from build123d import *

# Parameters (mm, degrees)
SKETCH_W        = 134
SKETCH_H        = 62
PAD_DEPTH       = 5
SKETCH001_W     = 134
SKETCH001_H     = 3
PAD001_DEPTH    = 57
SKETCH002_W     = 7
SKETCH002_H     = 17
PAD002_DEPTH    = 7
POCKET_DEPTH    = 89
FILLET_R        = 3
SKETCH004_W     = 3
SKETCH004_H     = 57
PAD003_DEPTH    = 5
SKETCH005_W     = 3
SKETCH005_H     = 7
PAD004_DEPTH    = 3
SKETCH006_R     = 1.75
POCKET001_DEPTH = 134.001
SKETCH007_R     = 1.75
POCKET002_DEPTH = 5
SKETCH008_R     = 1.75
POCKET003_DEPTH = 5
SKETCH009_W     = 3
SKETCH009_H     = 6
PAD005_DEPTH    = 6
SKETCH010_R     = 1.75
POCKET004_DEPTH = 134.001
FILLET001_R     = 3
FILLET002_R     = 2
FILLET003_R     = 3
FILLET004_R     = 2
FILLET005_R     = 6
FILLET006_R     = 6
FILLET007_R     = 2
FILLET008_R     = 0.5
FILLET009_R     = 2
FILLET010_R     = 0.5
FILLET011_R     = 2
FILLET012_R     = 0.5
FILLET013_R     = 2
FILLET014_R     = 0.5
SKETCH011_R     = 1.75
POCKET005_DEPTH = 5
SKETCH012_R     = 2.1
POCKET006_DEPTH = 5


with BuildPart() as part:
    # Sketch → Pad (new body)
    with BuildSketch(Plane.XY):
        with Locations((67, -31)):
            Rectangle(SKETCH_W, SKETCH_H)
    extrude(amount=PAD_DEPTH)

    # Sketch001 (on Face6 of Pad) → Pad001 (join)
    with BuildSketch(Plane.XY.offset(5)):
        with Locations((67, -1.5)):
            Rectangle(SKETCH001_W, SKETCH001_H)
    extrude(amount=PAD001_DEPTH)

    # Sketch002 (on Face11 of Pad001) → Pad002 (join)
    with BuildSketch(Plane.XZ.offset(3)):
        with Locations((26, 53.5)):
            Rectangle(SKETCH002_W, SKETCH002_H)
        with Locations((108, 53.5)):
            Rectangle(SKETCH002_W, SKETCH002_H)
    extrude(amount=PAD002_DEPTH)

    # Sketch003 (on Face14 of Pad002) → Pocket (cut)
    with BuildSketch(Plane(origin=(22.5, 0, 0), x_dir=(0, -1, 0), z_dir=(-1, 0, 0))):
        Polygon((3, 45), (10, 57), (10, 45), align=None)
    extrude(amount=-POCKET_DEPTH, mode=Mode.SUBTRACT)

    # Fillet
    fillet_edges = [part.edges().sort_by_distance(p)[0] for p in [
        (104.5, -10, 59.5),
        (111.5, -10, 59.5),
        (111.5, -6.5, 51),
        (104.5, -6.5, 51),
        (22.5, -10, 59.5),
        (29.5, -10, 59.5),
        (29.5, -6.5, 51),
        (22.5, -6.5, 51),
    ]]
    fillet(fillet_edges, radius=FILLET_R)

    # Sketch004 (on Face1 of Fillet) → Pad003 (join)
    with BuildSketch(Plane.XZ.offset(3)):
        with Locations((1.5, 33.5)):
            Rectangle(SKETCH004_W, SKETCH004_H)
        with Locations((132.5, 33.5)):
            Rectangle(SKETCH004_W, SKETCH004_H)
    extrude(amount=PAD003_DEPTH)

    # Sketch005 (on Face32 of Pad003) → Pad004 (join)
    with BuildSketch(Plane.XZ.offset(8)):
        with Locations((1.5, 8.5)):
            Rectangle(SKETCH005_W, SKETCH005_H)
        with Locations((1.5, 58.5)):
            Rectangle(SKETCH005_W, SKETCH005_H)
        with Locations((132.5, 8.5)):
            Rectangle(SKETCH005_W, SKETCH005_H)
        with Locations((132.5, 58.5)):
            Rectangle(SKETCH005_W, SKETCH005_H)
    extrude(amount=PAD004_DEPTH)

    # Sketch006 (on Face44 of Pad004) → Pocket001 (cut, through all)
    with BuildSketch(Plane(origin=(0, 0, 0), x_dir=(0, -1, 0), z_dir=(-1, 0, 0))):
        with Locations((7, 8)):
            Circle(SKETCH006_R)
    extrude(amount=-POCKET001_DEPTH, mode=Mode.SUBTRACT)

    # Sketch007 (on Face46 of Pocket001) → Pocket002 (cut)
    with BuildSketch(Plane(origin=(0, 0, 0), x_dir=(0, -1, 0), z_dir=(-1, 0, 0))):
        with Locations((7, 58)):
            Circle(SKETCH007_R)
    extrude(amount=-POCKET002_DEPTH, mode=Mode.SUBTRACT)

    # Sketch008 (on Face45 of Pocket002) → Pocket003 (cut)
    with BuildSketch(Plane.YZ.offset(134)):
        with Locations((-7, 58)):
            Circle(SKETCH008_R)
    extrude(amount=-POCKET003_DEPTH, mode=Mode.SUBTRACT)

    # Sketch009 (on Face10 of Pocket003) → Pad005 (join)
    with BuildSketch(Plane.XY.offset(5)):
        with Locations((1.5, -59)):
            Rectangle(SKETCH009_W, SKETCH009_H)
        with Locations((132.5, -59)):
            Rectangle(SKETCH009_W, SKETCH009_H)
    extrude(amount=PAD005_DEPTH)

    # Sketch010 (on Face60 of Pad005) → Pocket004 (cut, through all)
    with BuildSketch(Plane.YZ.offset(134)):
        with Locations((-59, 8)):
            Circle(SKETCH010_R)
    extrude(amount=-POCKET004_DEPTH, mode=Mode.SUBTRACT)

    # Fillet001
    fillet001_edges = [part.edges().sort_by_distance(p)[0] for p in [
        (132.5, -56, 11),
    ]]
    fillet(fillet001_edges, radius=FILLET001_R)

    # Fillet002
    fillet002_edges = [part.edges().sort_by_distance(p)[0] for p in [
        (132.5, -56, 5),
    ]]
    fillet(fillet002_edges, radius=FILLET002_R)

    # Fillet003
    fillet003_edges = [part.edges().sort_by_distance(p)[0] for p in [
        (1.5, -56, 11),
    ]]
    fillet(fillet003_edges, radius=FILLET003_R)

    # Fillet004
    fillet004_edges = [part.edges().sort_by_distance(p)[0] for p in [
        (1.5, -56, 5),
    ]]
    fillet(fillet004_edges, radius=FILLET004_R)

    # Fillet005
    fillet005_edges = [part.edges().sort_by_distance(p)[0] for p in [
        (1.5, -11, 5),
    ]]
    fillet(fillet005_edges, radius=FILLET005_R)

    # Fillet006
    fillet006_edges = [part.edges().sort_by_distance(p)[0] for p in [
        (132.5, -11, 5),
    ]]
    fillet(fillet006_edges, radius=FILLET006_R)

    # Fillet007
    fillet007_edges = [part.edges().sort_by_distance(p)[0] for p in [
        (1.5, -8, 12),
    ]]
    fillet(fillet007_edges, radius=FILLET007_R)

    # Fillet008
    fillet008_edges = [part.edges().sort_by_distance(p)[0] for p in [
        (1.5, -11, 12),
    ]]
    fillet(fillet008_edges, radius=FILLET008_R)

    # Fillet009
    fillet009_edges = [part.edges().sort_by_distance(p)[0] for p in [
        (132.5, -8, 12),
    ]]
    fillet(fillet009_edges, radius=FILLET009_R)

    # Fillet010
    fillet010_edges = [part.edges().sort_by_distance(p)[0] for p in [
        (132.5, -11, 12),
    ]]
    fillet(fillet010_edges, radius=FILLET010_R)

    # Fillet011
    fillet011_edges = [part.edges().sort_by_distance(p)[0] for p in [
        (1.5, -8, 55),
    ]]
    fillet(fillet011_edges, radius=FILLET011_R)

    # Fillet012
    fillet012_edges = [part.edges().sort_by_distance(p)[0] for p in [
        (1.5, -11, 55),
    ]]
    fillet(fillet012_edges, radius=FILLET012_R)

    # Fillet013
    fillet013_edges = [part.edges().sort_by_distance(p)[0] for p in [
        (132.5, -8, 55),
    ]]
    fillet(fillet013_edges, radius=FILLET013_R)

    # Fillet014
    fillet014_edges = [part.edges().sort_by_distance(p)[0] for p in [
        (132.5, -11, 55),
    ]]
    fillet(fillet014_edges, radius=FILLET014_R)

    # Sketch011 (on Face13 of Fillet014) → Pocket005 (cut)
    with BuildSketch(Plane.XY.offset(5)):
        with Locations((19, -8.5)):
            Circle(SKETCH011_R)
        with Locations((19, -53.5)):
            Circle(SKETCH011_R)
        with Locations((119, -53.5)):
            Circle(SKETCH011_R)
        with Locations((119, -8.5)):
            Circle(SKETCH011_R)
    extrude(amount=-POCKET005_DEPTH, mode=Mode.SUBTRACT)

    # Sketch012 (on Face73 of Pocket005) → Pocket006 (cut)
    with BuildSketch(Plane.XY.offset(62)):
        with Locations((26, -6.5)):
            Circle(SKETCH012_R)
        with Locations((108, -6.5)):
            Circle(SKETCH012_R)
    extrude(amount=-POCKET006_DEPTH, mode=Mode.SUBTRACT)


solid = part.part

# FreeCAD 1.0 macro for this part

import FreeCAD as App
import Part
import Sketcher

V = App.Vector


def edges_at(feature, points):
    """Names of the edges that pass closest to the given points."""
    edges = feature.Shape.Edges
    near = lambda p: min(range(len(edges)), key=lambda i: edges[i].distToShape(Part.Vertex(*p))[0])
    return sorted({f"Edge{near(p) + 1}" for p in points})


def add_polygon(sketch, points):
    """Adds a closed chain of lines whose ends are joined by coincident constraints."""
    first, n = sketch.GeometryCount, len(points)
    for a, b in zip(points, points[1:] + points[:1]):
        sketch.addGeometry(Part.LineSegment(App.Vector(*a, 0), App.Vector(*b, 0)), False)
    for i in range(n):
        sketch.addConstraint(Sketcher.Constraint("Coincident", first + i, 2, first + (i + 1) % n, 1))

doc = App.newDocument("Part")
body = doc.addObject("PartDesign::Body", "Body")

sketch1 = body.newObject("Sketcher::SketchObject", "Sketch")
sketch1.AttachmentSupport = (doc.getObject("XY_Plane"), [""])
sketch1.MapMode = "FlatFace"
add_polygon(sketch1, [(0, 0), (0, -62), (134, -62), (134, 0)])
sketch1.addConstraint(Sketcher.Constraint("Vertical", 0))
sketch1.addConstraint(Sketcher.Constraint("Horizontal", 1))
sketch1.addConstraint(Sketcher.Constraint("Vertical", 2))
sketch1.addConstraint(Sketcher.Constraint("Horizontal", 3))
sketch1.addConstraint(Sketcher.Constraint("Coincident", 3, 2, -1, 1))
sketch1.addConstraint(Sketcher.Constraint("DistanceX", 1, 1, 1, 2, 134.0))
sketch1.addConstraint(Sketcher.Constraint("DistanceY", 0, 2, 0, 1, 62.0))
pad1 = body.newObject("PartDesign::Pad", "Pad")
pad1.Profile = sketch1
pad1.Length = 5

sketch2 = body.newObject("Sketcher::SketchObject", "Sketch001")
sketch2.AttachmentSupport = (doc.getObject("XY_Plane"), [""])
sketch2.MapMode = "FlatFace"
sketch2.AttachmentOffset = App.Placement(V(0, 0, 5), App.Rotation())
add_polygon(sketch2, [(0, 0), (0, -3), (134, -3), (134, 0)])
sketch2.addConstraint(Sketcher.Constraint("Vertical", 0))
sketch2.addConstraint(Sketcher.Constraint("Horizontal", 1))
sketch2.addConstraint(Sketcher.Constraint("Vertical", 2))
sketch2.addConstraint(Sketcher.Constraint("Horizontal", 3))
sketch2.addConstraint(Sketcher.Constraint("Coincident", 3, 2, -1, 1))
sketch2.addConstraint(Sketcher.Constraint("DistanceX", 1, 1, 1, 2, 134.0))
sketch2.addConstraint(Sketcher.Constraint("DistanceY", 0, 2, 0, 1, 3.0))
pad2 = body.newObject("PartDesign::Pad", "Pad001")
pad2.Profile = sketch2
pad2.Length = 57

sketch3 = body.newObject("Sketcher::SketchObject", "Sketch002")
sketch3.AttachmentSupport = (doc.getObject("XZ_Plane"), [""])
sketch3.MapMode = "FlatFace"
sketch3.AttachmentOffset = App.Placement(V(0, 0, 3), App.Rotation())
add_polygon(sketch3, [(22, 62), (22, 45), (30, 45), (30, 62)])
add_polygon(sketch3, [(104, 62), (104, 45), (112, 45), (112, 62)])
sketch3.addConstraint(Sketcher.Constraint("Vertical", 0))
sketch3.addConstraint(Sketcher.Constraint("Horizontal", 1))
sketch3.addConstraint(Sketcher.Constraint("Vertical", 2))
sketch3.addConstraint(Sketcher.Constraint("Horizontal", 3))
sketch3.addConstraint(Sketcher.Constraint("Vertical", 4))
sketch3.addConstraint(Sketcher.Constraint("Horizontal", 5))
sketch3.addConstraint(Sketcher.Constraint("Vertical", 6))
sketch3.addConstraint(Sketcher.Constraint("Horizontal", 7))
sketch3.addConstraint(Sketcher.Constraint("Horizontal", 1, 2, 4, 2))
sketch3.addConstraint(Sketcher.Constraint("Horizontal", 3, 2, 6, 2))
sketch3.addConstraint(Sketcher.Constraint("Equal", 3, 5))
sketch3.addConstraint(Sketcher.Constraint("DistanceX", 1, 1, 1, 2, 7.0))
sketch3.addConstraint(Sketcher.Constraint("DistanceY", 0, 2, 0, 1, 17.0))
sketch3.addConstraint(Sketcher.Constraint("DistanceY", -1, 1, 0, 2, 45.0))
sketch3.addConstraint(Sketcher.Constraint("DistanceX", 1, 2, 4, 2, 75.0))
sketch3.addConstraint(Sketcher.Constraint("DistanceX", -1, 1, 0, 2, 22.5))
pad3 = body.newObject("PartDesign::Pad", "Pad002")
pad3.Profile = sketch3
pad3.Length = 7

sketch4 = body.newObject("Sketcher::SketchObject", "Sketch003")
sketch4.AttachmentSupport = (doc.getObject("YZ_Plane"), [""])
sketch4.MapMode = "FlatFace"
sketch4.AttachmentOffset = App.Placement(V(0, 0, 22.5), App.Rotation())
add_polygon(sketch4, [(-10, 57), (-3, 45), (-10, 45)])
sketch4.addConstraint(Sketcher.Constraint("Horizontal", 1))
sketch4.addConstraint(Sketcher.Constraint("Vertical", 2))
sketch4.addConstraint(Sketcher.Constraint("DistanceX", 1, 2, 1, 1, 7.0))
sketch4.addConstraint(Sketcher.Constraint("DistanceY", 2, 1, 2, 2, 12.0))
sketch4.addConstraint(Sketcher.Constraint("DistanceX", 0, 2, -1, 1, 3.0))
sketch4.addConstraint(Sketcher.Constraint("DistanceY", -1, 1, 0, 2, 45.0))
pocket1 = body.newObject("PartDesign::Pocket", "Pocket")
pocket1.Profile = sketch4
pocket1.Length = 89
pocket1.Reversed = True
doc.recompute()

fillet = body.newObject("PartDesign::Fillet", "Fillet")
fillet.Base = (pocket1, edges_at(pocket1, [
    (104.5, -10, 59.5),
    (111.5, -10, 59.5),
    (111.5, -6.5, 51),
    (104.5, -6.5, 51),
    (22.5, -10, 59.5),
    (29.5, -10, 59.5),
    (29.5, -6.5, 51),
    (22.5, -6.5, 51),
]))
fillet.Radius = 3

sketch5 = body.newObject("Sketcher::SketchObject", "Sketch004")
sketch5.AttachmentSupport = (doc.getObject("XZ_Plane"), [""])
sketch5.MapMode = "FlatFace"
sketch5.AttachmentOffset = App.Placement(V(0, 0, 3), App.Rotation())
add_polygon(sketch5, [(0, 62), (0, 5), (3, 5), (3, 62)])
add_polygon(sketch5, [(131, 62), (131, 5), (134, 5), (134, 62)])
sketch5.addConstraint(Sketcher.Constraint("Vertical", 0))
sketch5.addConstraint(Sketcher.Constraint("Horizontal", 1))
sketch5.addConstraint(Sketcher.Constraint("Vertical", 2))
sketch5.addConstraint(Sketcher.Constraint("Horizontal", 3))
sketch5.addConstraint(Sketcher.Constraint("Vertical", 4))
sketch5.addConstraint(Sketcher.Constraint("Horizontal", 5))
sketch5.addConstraint(Sketcher.Constraint("Vertical", 6))
sketch5.addConstraint(Sketcher.Constraint("Horizontal", 7))
sketch5.addConstraint(Sketcher.Constraint("PointOnObject", 0, 2, -2))
sketch5.addConstraint(Sketcher.Constraint("Horizontal", 1, 2, 4, 2))
sketch5.addConstraint(Sketcher.Constraint("Horizontal", 3, 2, 6, 2))
sketch5.addConstraint(Sketcher.Constraint("Equal", 3, 5))
sketch5.addConstraint(Sketcher.Constraint("DistanceX", 1, 1, 1, 2, 3.0))
sketch5.addConstraint(Sketcher.Constraint("DistanceY", 0, 2, 0, 1, 57.0))
sketch5.addConstraint(Sketcher.Constraint("DistanceY", -1, 1, 0, 2, 5.0))
sketch5.addConstraint(Sketcher.Constraint("DistanceX", -1, 1, 4, 2, 131.0))
pad4 = body.newObject("PartDesign::Pad", "Pad003")
pad4.Profile = sketch5
pad4.Length = 5

sketch6 = body.newObject("Sketcher::SketchObject", "Sketch005")
sketch6.AttachmentSupport = (doc.getObject("XZ_Plane"), [""])
sketch6.MapMode = "FlatFace"
sketch6.AttachmentOffset = App.Placement(V(0, 0, 8), App.Rotation())
add_polygon(sketch6, [(0, 12), (0, 5), (3, 5), (3, 12)])
add_polygon(sketch6, [(0, 62), (0, 55), (3, 55), (3, 62)])
add_polygon(sketch6, [(131, 12), (131, 5), (134, 5), (134, 12)])
add_polygon(sketch6, [(131, 62), (131, 55), (134, 55), (134, 62)])
sketch6.addConstraint(Sketcher.Constraint("Vertical", 0))
sketch6.addConstraint(Sketcher.Constraint("Horizontal", 1))
sketch6.addConstraint(Sketcher.Constraint("Vertical", 2))
sketch6.addConstraint(Sketcher.Constraint("Horizontal", 3))
sketch6.addConstraint(Sketcher.Constraint("Vertical", 4))
sketch6.addConstraint(Sketcher.Constraint("Horizontal", 5))
sketch6.addConstraint(Sketcher.Constraint("Vertical", 6))
sketch6.addConstraint(Sketcher.Constraint("Horizontal", 7))
sketch6.addConstraint(Sketcher.Constraint("Vertical", 8))
sketch6.addConstraint(Sketcher.Constraint("Horizontal", 9))
sketch6.addConstraint(Sketcher.Constraint("Vertical", 10))
sketch6.addConstraint(Sketcher.Constraint("Horizontal", 11))
sketch6.addConstraint(Sketcher.Constraint("Vertical", 12))
sketch6.addConstraint(Sketcher.Constraint("Horizontal", 13))
sketch6.addConstraint(Sketcher.Constraint("Vertical", 14))
sketch6.addConstraint(Sketcher.Constraint("Horizontal", 15))
sketch6.addConstraint(Sketcher.Constraint("PointOnObject", 0, 2, -2))
sketch6.addConstraint(Sketcher.Constraint("PointOnObject", 4, 2, -2))
sketch6.addConstraint(Sketcher.Constraint("Horizontal", 1, 2, 8, 2))
sketch6.addConstraint(Sketcher.Constraint("Horizontal", 3, 2, 10, 2))
sketch6.addConstraint(Sketcher.Constraint("Horizontal", 5, 2, 12, 2))
sketch6.addConstraint(Sketcher.Constraint("Horizontal", 7, 2, 14, 2))
sketch6.addConstraint(Sketcher.Constraint("Vertical", 2, 2, 5, 2))
sketch6.addConstraint(Sketcher.Constraint("Vertical", 11, 2, 12, 2))
sketch6.addConstraint(Sketcher.Constraint("Vertical", 10, 2, 13, 2))
sketch6.addConstraint(Sketcher.Constraint("Equal", 7, 9))
sketch6.addConstraint(Sketcher.Constraint("Equal", 2, 4))
sketch6.addConstraint(Sketcher.Constraint("DistanceX", 1, 1, 1, 2, 3.0))
sketch6.addConstraint(Sketcher.Constraint("DistanceY", 0, 2, 0, 1, 7.0))
sketch6.addConstraint(Sketcher.Constraint("DistanceY", -1, 1, 0, 2, 5.0))
sketch6.addConstraint(Sketcher.Constraint("DistanceY", -1, 1, 4, 2, 55.0))
sketch6.addConstraint(Sketcher.Constraint("DistanceX", -1, 1, 8, 2, 131.0))
pad5 = body.newObject("PartDesign::Pad", "Pad004")
pad5.Profile = sketch6
pad5.Length = 3

sketch7 = body.newObject("Sketcher::SketchObject", "Sketch006")
sketch7.AttachmentSupport = (doc.getObject("YZ_Plane"), [""])
sketch7.MapMode = "FlatFace"
sketch7.addGeometry(Part.Circle(V(-7, 8, 0), V(0, 0, 1), 1.8), False)
sketch7.addConstraint(Sketcher.Constraint("Diameter", 0, 3.5))
sketch7.addConstraint(Sketcher.Constraint("DistanceX", 0, 3, -1, 1, 7.0))
sketch7.addConstraint(Sketcher.Constraint("DistanceY", -1, 1, 0, 3, 8.0))
pocket2 = body.newObject("PartDesign::Pocket", "Pocket001")
pocket2.Profile = sketch7
pocket2.Type = "ThroughAll"
pocket2.Reversed = True

sketch8 = body.newObject("Sketcher::SketchObject", "Sketch007")
sketch8.AttachmentSupport = (doc.getObject("YZ_Plane"), [""])
sketch8.MapMode = "FlatFace"
sketch8.addGeometry(Part.Circle(V(-7, 58, 0), V(0, 0, 1), 1.8), False)
sketch8.addConstraint(Sketcher.Constraint("Diameter", 0, 3.5))
sketch8.addConstraint(Sketcher.Constraint("DistanceX", 0, 3, -1, 1, 7.0))
sketch8.addConstraint(Sketcher.Constraint("DistanceY", -1, 1, 0, 3, 58.0))
pocket3 = body.newObject("PartDesign::Pocket", "Pocket002")
pocket3.Profile = sketch8
pocket3.Length = 5
pocket3.Reversed = True

sketch9 = body.newObject("Sketcher::SketchObject", "Sketch008")
sketch9.AttachmentSupport = (doc.getObject("YZ_Plane"), [""])
sketch9.MapMode = "FlatFace"
sketch9.AttachmentOffset = App.Placement(V(0, 0, 134), App.Rotation())
sketch9.addGeometry(Part.Circle(V(-7, 58, 0), V(0, 0, 1), 1.8), False)
sketch9.addConstraint(Sketcher.Constraint("Diameter", 0, 3.5))
sketch9.addConstraint(Sketcher.Constraint("DistanceX", 0, 3, -1, 1, 7.0))
sketch9.addConstraint(Sketcher.Constraint("DistanceY", -1, 1, 0, 3, 58.0))
pocket4 = body.newObject("PartDesign::Pocket", "Pocket003")
pocket4.Profile = sketch9
pocket4.Length = 5

sketch10 = body.newObject("Sketcher::SketchObject", "Sketch009")
sketch10.AttachmentSupport = (doc.getObject("XY_Plane"), [""])
sketch10.MapMode = "FlatFace"
sketch10.AttachmentOffset = App.Placement(V(0, 0, 5), App.Rotation())
add_polygon(sketch10, [(0, -56), (0, -62), (3, -62), (3, -56)])
add_polygon(sketch10, [(131, -56), (131, -62), (134, -62), (134, -56)])
sketch10.addConstraint(Sketcher.Constraint("Vertical", 0))
sketch10.addConstraint(Sketcher.Constraint("Horizontal", 1))
sketch10.addConstraint(Sketcher.Constraint("Vertical", 2))
sketch10.addConstraint(Sketcher.Constraint("Horizontal", 3))
sketch10.addConstraint(Sketcher.Constraint("Vertical", 4))
sketch10.addConstraint(Sketcher.Constraint("Horizontal", 5))
sketch10.addConstraint(Sketcher.Constraint("Vertical", 6))
sketch10.addConstraint(Sketcher.Constraint("Horizontal", 7))
sketch10.addConstraint(Sketcher.Constraint("PointOnObject", 0, 2, -2))
sketch10.addConstraint(Sketcher.Constraint("Horizontal", 1, 2, 4, 2))
sketch10.addConstraint(Sketcher.Constraint("Horizontal", 3, 2, 6, 2))
sketch10.addConstraint(Sketcher.Constraint("Equal", 3, 5))
sketch10.addConstraint(Sketcher.Constraint("DistanceX", 1, 1, 1, 2, 3.0))
sketch10.addConstraint(Sketcher.Constraint("DistanceY", 0, 2, 0, 1, 6.0))
sketch10.addConstraint(Sketcher.Constraint("DistanceY", 0, 2, -1, 1, 62.0))
sketch10.addConstraint(Sketcher.Constraint("DistanceX", -1, 1, 4, 2, 131.0))
pad6 = body.newObject("PartDesign::Pad", "Pad005")
pad6.Profile = sketch10
pad6.Length = 6

sketch11 = body.newObject("Sketcher::SketchObject", "Sketch010")
sketch11.AttachmentSupport = (doc.getObject("YZ_Plane"), [""])
sketch11.MapMode = "FlatFace"
sketch11.AttachmentOffset = App.Placement(V(0, 0, 134), App.Rotation())
sketch11.addGeometry(Part.Circle(V(-59, 8, 0), V(0, 0, 1), 1.8), False)
sketch11.addConstraint(Sketcher.Constraint("Diameter", 0, 3.5))
sketch11.addConstraint(Sketcher.Constraint("DistanceX", 0, 3, -1, 1, 59.0))
sketch11.addConstraint(Sketcher.Constraint("DistanceY", -1, 1, 0, 3, 8.0))
pocket5 = body.newObject("PartDesign::Pocket", "Pocket004")
pocket5.Profile = sketch11
pocket5.Type = "ThroughAll"
doc.recompute()

fillet2 = body.newObject("PartDesign::Fillet", "Fillet001")
fillet2.Base = (pocket5, edges_at(pocket5, [(132.5, -56, 11)]))
fillet2.Radius = 3
doc.recompute()

fillet3 = body.newObject("PartDesign::Fillet", "Fillet002")
fillet3.Base = (fillet2, edges_at(fillet2, [(132.5, -56, 5)]))
fillet3.Radius = 2
doc.recompute()

fillet4 = body.newObject("PartDesign::Fillet", "Fillet003")
fillet4.Base = (fillet3, edges_at(fillet3, [(1.5, -56, 11)]))
fillet4.Radius = 3
doc.recompute()

fillet5 = body.newObject("PartDesign::Fillet", "Fillet004")
fillet5.Base = (fillet4, edges_at(fillet4, [(1.5, -56, 5)]))
fillet5.Radius = 2
doc.recompute()

fillet6 = body.newObject("PartDesign::Fillet", "Fillet005")
fillet6.Base = (fillet5, edges_at(fillet5, [(1.5, -11, 5)]))
fillet6.Radius = 6
doc.recompute()

fillet7 = body.newObject("PartDesign::Fillet", "Fillet006")
fillet7.Base = (fillet6, edges_at(fillet6, [(132.5, -11, 5)]))
fillet7.Radius = 6
doc.recompute()

fillet8 = body.newObject("PartDesign::Fillet", "Fillet007")
fillet8.Base = (fillet7, edges_at(fillet7, [(1.5, -8, 12)]))
fillet8.Radius = 2
doc.recompute()

fillet9 = body.newObject("PartDesign::Fillet", "Fillet008")
fillet9.Base = (fillet8, edges_at(fillet8, [(1.5, -11, 12)]))
fillet9.Radius = 0.5
doc.recompute()

fillet10 = body.newObject("PartDesign::Fillet", "Fillet009")
fillet10.Base = (fillet9, edges_at(fillet9, [(132.5, -8, 12)]))
fillet10.Radius = 2
doc.recompute()

fillet11 = body.newObject("PartDesign::Fillet", "Fillet010")
fillet11.Base = (fillet10, edges_at(fillet10, [(132.5, -11, 12)]))
fillet11.Radius = 0.5
doc.recompute()

fillet12 = body.newObject("PartDesign::Fillet", "Fillet011")
fillet12.Base = (fillet11, edges_at(fillet11, [(1.5, -8, 55)]))
fillet12.Radius = 2
doc.recompute()

fillet13 = body.newObject("PartDesign::Fillet", "Fillet012")
fillet13.Base = (fillet12, edges_at(fillet12, [(1.5, -11, 55)]))
fillet13.Radius = 0.5
doc.recompute()

fillet14 = body.newObject("PartDesign::Fillet", "Fillet013")
fillet14.Base = (fillet13, edges_at(fillet13, [(132.5, -8, 55)]))
fillet14.Radius = 2
doc.recompute()

fillet15 = body.newObject("PartDesign::Fillet", "Fillet014")
fillet15.Base = (fillet14, edges_at(fillet14, [(132.5, -11, 55)]))
fillet15.Radius = 0.5

sketch12 = body.newObject("Sketcher::SketchObject", "Sketch011")
sketch12.AttachmentSupport = (doc.getObject("XY_Plane"), [""])
sketch12.MapMode = "FlatFace"
sketch12.AttachmentOffset = App.Placement(V(0, 0, 5), App.Rotation())
sketch12.addGeometry(Part.Circle(V(19, -8.5, 0), V(0, 0, 1), 1.8), False)
sketch12.addGeometry(Part.Circle(V(19, -53.5, 0), V(0, 0, 1), 1.8), False)
sketch12.addGeometry(Part.Circle(V(119, -53.5, 0), V(0, 0, 1), 1.8), False)
sketch12.addGeometry(Part.Circle(V(119, -8.5, 0), V(0, 0, 1), 1.8), False)
sketch12.addConstraint(Sketcher.Constraint("Equal", 0, 1))
sketch12.addConstraint(Sketcher.Constraint("Equal", 1, 2))
sketch12.addConstraint(Sketcher.Constraint("Equal", 2, 3))
sketch12.addConstraint(Sketcher.Constraint("Horizontal", 1, 3, 2, 3))
sketch12.addConstraint(Sketcher.Constraint("Horizontal", 0, 3, 3, 3))
sketch12.addConstraint(Sketcher.Constraint("Vertical", 0, 3, 1, 3))
sketch12.addConstraint(Sketcher.Constraint("Vertical", 2, 3, 3, 3))
sketch12.addConstraint(Sketcher.Constraint("Diameter", 0, 3.5))
sketch12.addConstraint(Sketcher.Constraint("DistanceX", -1, 1, 0, 3, 19.0))
sketch12.addConstraint(Sketcher.Constraint("DistanceX", -1, 1, 2, 3, 119.0))
sketch12.addConstraint(Sketcher.Constraint("DistanceY", 1, 3, 0, 3, 45.0))
sketch12.addConstraint(Sketcher.Constraint("DistanceY", 0, 3, -1, 1, 8.5))
pocket6 = body.newObject("PartDesign::Pocket", "Pocket005")
pocket6.Profile = sketch12
pocket6.Length = 5

sketch13 = body.newObject("Sketcher::SketchObject", "Sketch012")
sketch13.AttachmentSupport = (doc.getObject("XY_Plane"), [""])
sketch13.MapMode = "FlatFace"
sketch13.AttachmentOffset = App.Placement(V(0, 0, 62), App.Rotation())
sketch13.addGeometry(Part.Circle(V(26, -6.5, 0), V(0, 0, 1), 2.1), False)
sketch13.addGeometry(Part.Circle(V(108, -6.5, 0), V(0, 0, 1), 2.1), False)
sketch13.addConstraint(Sketcher.Constraint("Equal", 0, 1))
sketch13.addConstraint(Sketcher.Constraint("Horizontal", 0, 3, 1, 3))
sketch13.addConstraint(Sketcher.Constraint("Diameter", 0, 4.2))
sketch13.addConstraint(Sketcher.Constraint("DistanceX", -1, 1, 0, 3, 26.0))
sketch13.addConstraint(Sketcher.Constraint("DistanceX", -1, 1, 1, 3, 108.0))
sketch13.addConstraint(Sketcher.Constraint("DistanceY", 0, 3, -1, 1, 6.5))
pocket7 = body.newObject("PartDesign::Pocket", "Pocket006")
pocket7.Profile = sketch13
pocket7.Length = 5

doc.recompute()
